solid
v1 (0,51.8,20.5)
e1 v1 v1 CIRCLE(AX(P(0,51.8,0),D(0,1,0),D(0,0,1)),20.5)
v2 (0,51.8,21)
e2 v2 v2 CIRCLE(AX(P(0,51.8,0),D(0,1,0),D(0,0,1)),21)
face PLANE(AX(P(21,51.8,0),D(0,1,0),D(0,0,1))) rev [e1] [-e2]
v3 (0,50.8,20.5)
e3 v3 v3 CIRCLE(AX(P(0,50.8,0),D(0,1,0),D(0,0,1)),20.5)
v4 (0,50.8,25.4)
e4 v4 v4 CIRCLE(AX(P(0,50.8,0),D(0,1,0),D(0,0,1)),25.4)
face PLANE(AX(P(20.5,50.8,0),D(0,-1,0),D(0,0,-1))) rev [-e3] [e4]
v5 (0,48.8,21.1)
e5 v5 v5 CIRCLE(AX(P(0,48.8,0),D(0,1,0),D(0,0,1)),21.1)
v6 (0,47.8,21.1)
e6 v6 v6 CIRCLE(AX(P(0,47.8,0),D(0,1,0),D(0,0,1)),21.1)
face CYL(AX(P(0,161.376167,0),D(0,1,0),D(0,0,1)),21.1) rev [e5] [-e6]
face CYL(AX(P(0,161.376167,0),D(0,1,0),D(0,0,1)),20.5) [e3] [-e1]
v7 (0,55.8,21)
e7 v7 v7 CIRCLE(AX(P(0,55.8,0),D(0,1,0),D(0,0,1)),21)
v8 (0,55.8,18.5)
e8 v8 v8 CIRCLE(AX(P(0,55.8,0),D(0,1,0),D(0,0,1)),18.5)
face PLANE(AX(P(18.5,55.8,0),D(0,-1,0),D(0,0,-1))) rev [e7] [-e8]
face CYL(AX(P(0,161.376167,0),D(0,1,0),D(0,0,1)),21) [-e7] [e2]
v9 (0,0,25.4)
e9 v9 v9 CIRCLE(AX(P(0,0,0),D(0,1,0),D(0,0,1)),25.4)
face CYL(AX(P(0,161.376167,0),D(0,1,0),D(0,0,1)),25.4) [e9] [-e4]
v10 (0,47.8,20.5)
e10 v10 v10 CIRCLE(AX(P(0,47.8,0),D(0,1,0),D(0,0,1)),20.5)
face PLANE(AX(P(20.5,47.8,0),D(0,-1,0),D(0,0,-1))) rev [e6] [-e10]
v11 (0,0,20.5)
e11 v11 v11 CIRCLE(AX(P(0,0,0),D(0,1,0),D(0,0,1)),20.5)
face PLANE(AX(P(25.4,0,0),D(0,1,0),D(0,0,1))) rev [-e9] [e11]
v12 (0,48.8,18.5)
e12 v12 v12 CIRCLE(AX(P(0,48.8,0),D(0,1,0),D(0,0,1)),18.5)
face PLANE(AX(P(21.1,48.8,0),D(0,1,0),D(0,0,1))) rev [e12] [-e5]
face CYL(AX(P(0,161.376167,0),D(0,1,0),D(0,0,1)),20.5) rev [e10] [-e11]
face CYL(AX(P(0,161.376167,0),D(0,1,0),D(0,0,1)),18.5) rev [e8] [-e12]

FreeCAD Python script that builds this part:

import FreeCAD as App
import Part
import Sketcher
from FreeCAD import Vector
Q = App.Units.Quantity


def add_polygon(sketch, points):
    """Adds a closed chain of lines whose ends are joined by coincident constraints."""
    first, n = sketch.GeometryCount, len(points)
    for a, b in zip(points, points[1:] + points[:1]):
        sketch.addGeometry(Part.LineSegment(App.Vector(*a, 0), App.Vector(*b, 0)), False)
    for i in range(n):
        sketch.addConstraint(Sketcher.Constraint("Coincident", first + i, 2, first + (i + 1) % n, 1))

doc = App.newDocument("Part")
body = doc.addObject("PartDesign::Body", "Body")

sketch1 = doc.addObject("Sketcher::SketchObject", "Sketch")
body.addObject(sketch1)
sketch1.AttachmentSupport = (doc.XY_Plane, [""])
sketch1.MapMode = "FlatFace"
add_polygon(sketch1, [(21, 55.8), (18.5, 55.8), (18.5, 48.8), (21.1, 48.8), (21.1, 47.8), (20.5, 47.8), (20.5, 0), (25.4, 0), (25.4, 50.8), (20.5, 50.8), (20.5, 51.8), (21, 51.8)])
sketch1.addConstraint([
    Sketcher.Constraint("Horizontal", 0),
    Sketcher.Constraint("Vertical", 1),
    Sketcher.Constraint("Horizontal", 2),
    Sketcher.Constraint("Vertical", 3),
    Sketcher.Constraint("Horizontal", 4),
    Sketcher.Constraint("Vertical", 5),
    Sketcher.Constraint("Horizontal", 6),
    Sketcher.Constraint("Vertical", 7),
    Sketcher.Constraint("Horizontal", 8),
    Sketcher.Constraint("Vertical", 9),
    Sketcher.Constraint("Horizontal", 10),
    Sketcher.Constraint("Vertical", 11),
    Sketcher.Constraint("PointOnObject", 5, 2, -1),
    Sketcher.Constraint("Vertical", 5, 2, 8, 2),
    Sketcher.Constraint("Equal", 3, 9),
    Sketcher.Constraint("DistanceY", 1, 2, 1, 1, Q("7 mm")),
    Sketcher.Constraint("DistanceY", 3, 2, 3, 1, Q("1 mm")),
    Sketcher.Constraint("DistanceY", 11, 1, 11, 2, Q("4 mm")),
    Sketcher.Constraint("DistanceX", 0, 2, 0, 1, Q("2.5 mm")),
    Sketcher.Constraint("DistanceX", 2, 1, 2, 2, Q("2.6 mm")),
    Sketcher.Constraint("DistanceX", 4, 2, 4, 1, Q("0.6 mm")),
    Sketcher.Constraint("DistanceX", 6, 1, 6, 2, Q("4.9 mm")),
    Sketcher.Constraint("DistanceY", 5, 2, 5, 1, Q("47.8 mm")),
    Sketcher.Constraint("DistanceX", -1, 1, 10, 2, Q("21 mm")),
])
revolution = doc.addObject("PartDesign::Revolution", "Revolution")
body.addObject(revolution)
revolution.Profile = sketch1
revolution.ReferenceAxis = (sketch1, ["V_Axis"])
revolution.Angle = 360

doc.recompute()
